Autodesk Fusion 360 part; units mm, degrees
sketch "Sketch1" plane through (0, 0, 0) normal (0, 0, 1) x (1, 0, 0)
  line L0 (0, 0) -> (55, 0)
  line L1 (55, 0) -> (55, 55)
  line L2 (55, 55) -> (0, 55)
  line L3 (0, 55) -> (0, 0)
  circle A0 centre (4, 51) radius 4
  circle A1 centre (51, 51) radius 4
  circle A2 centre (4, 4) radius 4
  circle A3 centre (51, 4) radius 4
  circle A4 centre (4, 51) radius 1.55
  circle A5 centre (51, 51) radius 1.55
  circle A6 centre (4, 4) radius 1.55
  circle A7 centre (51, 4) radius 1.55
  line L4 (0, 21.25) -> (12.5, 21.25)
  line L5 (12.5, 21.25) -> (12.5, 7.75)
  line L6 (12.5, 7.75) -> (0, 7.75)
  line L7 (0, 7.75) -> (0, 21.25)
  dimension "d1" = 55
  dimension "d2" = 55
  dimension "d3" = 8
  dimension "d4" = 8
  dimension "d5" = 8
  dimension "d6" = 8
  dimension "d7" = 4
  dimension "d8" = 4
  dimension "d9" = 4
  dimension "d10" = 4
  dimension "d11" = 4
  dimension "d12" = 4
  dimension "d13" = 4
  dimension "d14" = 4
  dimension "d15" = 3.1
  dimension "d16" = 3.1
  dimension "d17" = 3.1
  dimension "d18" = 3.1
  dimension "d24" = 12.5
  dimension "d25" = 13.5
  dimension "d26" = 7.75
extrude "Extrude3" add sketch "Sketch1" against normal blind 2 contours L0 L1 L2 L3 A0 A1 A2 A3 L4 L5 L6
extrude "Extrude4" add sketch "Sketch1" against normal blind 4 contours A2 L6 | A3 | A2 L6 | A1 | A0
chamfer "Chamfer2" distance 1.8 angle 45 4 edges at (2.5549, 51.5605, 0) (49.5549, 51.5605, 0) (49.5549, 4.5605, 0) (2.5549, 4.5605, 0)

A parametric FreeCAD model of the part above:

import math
import FreeCAD as App
import Part
import Sketcher
Q = App.Units.Quantity


def edges_at(feature, points):
    """Names of the edges that pass closest to the given points."""
    edges = feature.Shape.Edges
    near = lambda p: min(range(len(edges)), key=lambda i: edges[i].distToShape(Part.Vertex(*p))[0])
    return sorted({f"Edge{near(p) + 1}" for p in points})

doc = App.newDocument("Part")
body = doc.addObject("PartDesign::Body", "Body")

# Sketch on XY plane
sketch1 = doc.addObject("Sketcher::SketchObject", "Sketch")
body.addObject(sketch1)
sketch1.AttachmentSupport = (doc.XY_Plane, [""])
sketch1.MapMode = "FlatFace"
sketch1.addGeometry(Part.ArcOfCircle(Part.Circle(App.Vector(4, 4, 0), App.Vector(0, 0, 1), 4), math.radians(-90), math.radians(70)), False)
sketch1.addGeometry(Part.LineSegment(App.Vector(4, 0, 0), App.Vector(51, 0, 0)), False)
sketch1.addGeometry(Part.ArcOfCircle(Part.Circle(App.Vector(51, 4, 0), App.Vector(0, 0, 1), 4), math.radians(0), math.radians(270)), False)
sketch1.addGeometry(Part.LineSegment(App.Vector(55, 4, 0), App.Vector(55, 51, 0)), False)
sketch1.addGeometry(Part.ArcOfCircle(Part.Circle(App.Vector(51, 51, 0), App.Vector(0, 0, 1), 4), math.radians(90), math.radians(360)), False)
sketch1.addGeometry(Part.LineSegment(App.Vector(51, 55, 0), App.Vector(4, 55, 0)), False)
sketch1.addGeometry(Part.ArcOfCircle(Part.Circle(App.Vector(4, 51, 0), App.Vector(0, 0, 1), 4), math.radians(180), math.radians(450)), False)
sketch1.addGeometry(Part.LineSegment(App.Vector(0, 51, 0), App.Vector(0, 21.2, 0)), False)
sketch1.addGeometry(Part.LineSegment(App.Vector(0, 21.2, 0), App.Vector(12.5, 21.2, 0)), False)
sketch1.addGeometry(Part.LineSegment(App.Vector(12.5, 21.2, 0), App.Vector(12.5, 7.8, 0)), False)
sketch1.addGeometry(Part.LineSegment(App.Vector(12.5, 7.8, 0), App.Vector(5.4, 7.8, 0)), False)
sketch1.addConstraint(Sketcher.Constraint("Tangent", 0, 1, 1, 1))
sketch1.addConstraint(Sketcher.Constraint("Tangent", 1, 2, 2, 2))
sketch1.addConstraint(Sketcher.Constraint("Tangent", 2, 1, 3, 1))
sketch1.addConstraint(Sketcher.Constraint("Tangent", 3, 2, 4, 2))
sketch1.addConstraint(Sketcher.Constraint("Tangent", 4, 1, 5, 1))
sketch1.addConstraint(Sketcher.Constraint("Tangent", 5, 2, 6, 2))
sketch1.addConstraint(Sketcher.Constraint("Tangent", 6, 1, 7, 1))
sketch1.addConstraint(Sketcher.Constraint("Coincident", 7, 2, 8, 1))
sketch1.addConstraint(Sketcher.Constraint("Coincident", 8, 2, 9, 1))
sketch1.addConstraint(Sketcher.Constraint("Coincident", 9, 2, 10, 1))
sketch1.addConstraint(Sketcher.Constraint("Coincident", 10, 2, 0, 2))
sketch1.addConstraint(Sketcher.Constraint("Horizontal", 1))
sketch1.addConstraint(Sketcher.Constraint("Vertical", 3))
sketch1.addConstraint(Sketcher.Constraint("Horizontal", 5))
sketch1.addConstraint(Sketcher.Constraint("Vertical", 7))
sketch1.addConstraint(Sketcher.Constraint("Horizontal", 8))
sketch1.addConstraint(Sketcher.Constraint("Vertical", 9))
sketch1.addConstraint(Sketcher.Constraint("Horizontal", 10))
sketch1.addConstraint(Sketcher.Constraint("Equal", 0, 2))
sketch1.addConstraint(Sketcher.Constraint("Equal", 2, 4))
sketch1.addConstraint(Sketcher.Constraint("Equal", 4, 6))
sketch1.addConstraint(Sketcher.Constraint("PointOnObject", 0, 1, -1))
sketch1.addConstraint(Sketcher.Constraint("PointOnObject", 6, 1, -2))
sketch1.addConstraint(Sketcher.Constraint("Vertical", 0, 3, 6, 3))
sketch1.addConstraint(Sketcher.Constraint("Equal", 5, 3))
sketch1.addConstraint(Sketcher.Constraint("Radius", 0, Q("4 mm")))
sketch1.addConstraint(Sketcher.Constraint("DistanceX", 8, 1, 8, 2, Q("12.5 mm")))
sketch1.addConstraint(Sketcher.Constraint("DistanceY", 9, 2, 9, 1, Q("13.5 mm")))
sketch1.addConstraint(Sketcher.Constraint("DistanceX", -1, 1, 2, 1, Q("55 mm")))
sketch1.addConstraint(Sketcher.Constraint("DistanceY", -1, 1, 9, 2, Q("7.75 mm")))
pad1 = doc.addObject("PartDesign::Pad", "Pad")
body.addObject(pad1)
pad1.Profile = sketch1
pad1.Length = 2
pad1.Reversed = True

# Sketch on XY plane
sketch2 = doc.addObject("Sketcher::SketchObject", "Sketch001")
body.addObject(sketch2)
sketch2.AttachmentSupport = (doc.XY_Plane, [""])
sketch2.MapMode = "FlatFace"
sketch2.addGeometry(Part.Circle(App.Vector(4, 4, 0), App.Vector(0, 0, 1), 4), False)
sketch2.addGeometry(Part.Circle(App.Vector(4, 4, 0), App.Vector(0, 0, 1), 1.6), False)
sketch2.addGeometry(Part.Circle(App.Vector(51, 4, 0), App.Vector(0, 0, 1), 4), False)
sketch2.addGeometry(Part.Circle(App.Vector(51, 4, 0), App.Vector(0, 0, 1), 1.6), False)
sketch2.addGeometry(Part.Circle(App.Vector(51, 51, 0), App.Vector(0, 0, 1), 4), False)
sketch2.addGeometry(Part.Circle(App.Vector(51, 51, 0), App.Vector(0, 0, 1), 1.6), False)
sketch2.addGeometry(Part.Circle(App.Vector(4, 51, 0), App.Vector(0, 0, 1), 4), False)
sketch2.addGeometry(Part.Circle(App.Vector(4, 51, 0), App.Vector(0, 0, 1), 1.6), False)
sketch2.addConstraint(Sketcher.Constraint("Coincident", 1, 3, 0, 3))
sketch2.addConstraint(Sketcher.Constraint("Coincident", 3, 3, 2, 3))
sketch2.addConstraint(Sketcher.Constraint("Coincident", 5, 3, 4, 3))
sketch2.addConstraint(Sketcher.Constraint("Coincident", 7, 3, 6, 3))
sketch2.addConstraint(Sketcher.Constraint("Equal", 0, 2))
sketch2.addConstraint(Sketcher.Constraint("Equal", 1, 3))
sketch2.addConstraint(Sketcher.Constraint("Equal", 2, 4))
sketch2.addConstraint(Sketcher.Constraint("Equal", 3, 5))
sketch2.addConstraint(Sketcher.Constraint("Equal", 4, 6))
sketch2.addConstraint(Sketcher.Constraint("Equal", 5, 7))
sketch2.addConstraint(Sketcher.Constraint("Horizontal", 1, 3, 2, 3))
sketch2.addConstraint(Sketcher.Constraint("Horizontal", 5, 3, 6, 3))
sketch2.addConstraint(Sketcher.Constraint("Vertical", 3, 3, 4, 3))
sketch2.addConstraint(Sketcher.Constraint("Vertical", 1, 3, 6, 3))
sketch2.addConstraint(Sketcher.Constraint("Diameter", 0, Q("8 mm")))
sketch2.addConstraint(Sketcher.Constraint("Diameter", 1, Q("3.1 mm")))
sketch2.addConstraint(Sketcher.Constraint("DistanceX", -1, 1, 0, 3, Q("4 mm")))
sketch2.addConstraint(Sketcher.Constraint("DistanceY", -1, 1, 0, 3, Q("4 mm")))
sketch2.addConstraint(Sketcher.Constraint("DistanceX", -1, 1, 2, 3, Q("51 mm")))
sketch2.addConstraint(Sketcher.Constraint("DistanceY", -1, 1, 4, 3, Q("51 mm")))
pad2 = doc.addObject("PartDesign::Pad", "Pad001")
body.addObject(pad2)
pad2.Profile = sketch2
pad2.Length = 4
pad2.Reversed = True
doc.recompute()

chamfer = doc.addObject("PartDesign::Chamfer", "Chamfer")
body.addObject(chamfer)
chamfer.Base = (pad2, edges_at(pad2, [
    (2.555, 51.56, 0),
    (49.555, 51.56, 0),
    (49.555, 4.561, 0),
    (2.555, 4.561, 0),
]))
chamfer.Size = 1.8

doc.recompute()
